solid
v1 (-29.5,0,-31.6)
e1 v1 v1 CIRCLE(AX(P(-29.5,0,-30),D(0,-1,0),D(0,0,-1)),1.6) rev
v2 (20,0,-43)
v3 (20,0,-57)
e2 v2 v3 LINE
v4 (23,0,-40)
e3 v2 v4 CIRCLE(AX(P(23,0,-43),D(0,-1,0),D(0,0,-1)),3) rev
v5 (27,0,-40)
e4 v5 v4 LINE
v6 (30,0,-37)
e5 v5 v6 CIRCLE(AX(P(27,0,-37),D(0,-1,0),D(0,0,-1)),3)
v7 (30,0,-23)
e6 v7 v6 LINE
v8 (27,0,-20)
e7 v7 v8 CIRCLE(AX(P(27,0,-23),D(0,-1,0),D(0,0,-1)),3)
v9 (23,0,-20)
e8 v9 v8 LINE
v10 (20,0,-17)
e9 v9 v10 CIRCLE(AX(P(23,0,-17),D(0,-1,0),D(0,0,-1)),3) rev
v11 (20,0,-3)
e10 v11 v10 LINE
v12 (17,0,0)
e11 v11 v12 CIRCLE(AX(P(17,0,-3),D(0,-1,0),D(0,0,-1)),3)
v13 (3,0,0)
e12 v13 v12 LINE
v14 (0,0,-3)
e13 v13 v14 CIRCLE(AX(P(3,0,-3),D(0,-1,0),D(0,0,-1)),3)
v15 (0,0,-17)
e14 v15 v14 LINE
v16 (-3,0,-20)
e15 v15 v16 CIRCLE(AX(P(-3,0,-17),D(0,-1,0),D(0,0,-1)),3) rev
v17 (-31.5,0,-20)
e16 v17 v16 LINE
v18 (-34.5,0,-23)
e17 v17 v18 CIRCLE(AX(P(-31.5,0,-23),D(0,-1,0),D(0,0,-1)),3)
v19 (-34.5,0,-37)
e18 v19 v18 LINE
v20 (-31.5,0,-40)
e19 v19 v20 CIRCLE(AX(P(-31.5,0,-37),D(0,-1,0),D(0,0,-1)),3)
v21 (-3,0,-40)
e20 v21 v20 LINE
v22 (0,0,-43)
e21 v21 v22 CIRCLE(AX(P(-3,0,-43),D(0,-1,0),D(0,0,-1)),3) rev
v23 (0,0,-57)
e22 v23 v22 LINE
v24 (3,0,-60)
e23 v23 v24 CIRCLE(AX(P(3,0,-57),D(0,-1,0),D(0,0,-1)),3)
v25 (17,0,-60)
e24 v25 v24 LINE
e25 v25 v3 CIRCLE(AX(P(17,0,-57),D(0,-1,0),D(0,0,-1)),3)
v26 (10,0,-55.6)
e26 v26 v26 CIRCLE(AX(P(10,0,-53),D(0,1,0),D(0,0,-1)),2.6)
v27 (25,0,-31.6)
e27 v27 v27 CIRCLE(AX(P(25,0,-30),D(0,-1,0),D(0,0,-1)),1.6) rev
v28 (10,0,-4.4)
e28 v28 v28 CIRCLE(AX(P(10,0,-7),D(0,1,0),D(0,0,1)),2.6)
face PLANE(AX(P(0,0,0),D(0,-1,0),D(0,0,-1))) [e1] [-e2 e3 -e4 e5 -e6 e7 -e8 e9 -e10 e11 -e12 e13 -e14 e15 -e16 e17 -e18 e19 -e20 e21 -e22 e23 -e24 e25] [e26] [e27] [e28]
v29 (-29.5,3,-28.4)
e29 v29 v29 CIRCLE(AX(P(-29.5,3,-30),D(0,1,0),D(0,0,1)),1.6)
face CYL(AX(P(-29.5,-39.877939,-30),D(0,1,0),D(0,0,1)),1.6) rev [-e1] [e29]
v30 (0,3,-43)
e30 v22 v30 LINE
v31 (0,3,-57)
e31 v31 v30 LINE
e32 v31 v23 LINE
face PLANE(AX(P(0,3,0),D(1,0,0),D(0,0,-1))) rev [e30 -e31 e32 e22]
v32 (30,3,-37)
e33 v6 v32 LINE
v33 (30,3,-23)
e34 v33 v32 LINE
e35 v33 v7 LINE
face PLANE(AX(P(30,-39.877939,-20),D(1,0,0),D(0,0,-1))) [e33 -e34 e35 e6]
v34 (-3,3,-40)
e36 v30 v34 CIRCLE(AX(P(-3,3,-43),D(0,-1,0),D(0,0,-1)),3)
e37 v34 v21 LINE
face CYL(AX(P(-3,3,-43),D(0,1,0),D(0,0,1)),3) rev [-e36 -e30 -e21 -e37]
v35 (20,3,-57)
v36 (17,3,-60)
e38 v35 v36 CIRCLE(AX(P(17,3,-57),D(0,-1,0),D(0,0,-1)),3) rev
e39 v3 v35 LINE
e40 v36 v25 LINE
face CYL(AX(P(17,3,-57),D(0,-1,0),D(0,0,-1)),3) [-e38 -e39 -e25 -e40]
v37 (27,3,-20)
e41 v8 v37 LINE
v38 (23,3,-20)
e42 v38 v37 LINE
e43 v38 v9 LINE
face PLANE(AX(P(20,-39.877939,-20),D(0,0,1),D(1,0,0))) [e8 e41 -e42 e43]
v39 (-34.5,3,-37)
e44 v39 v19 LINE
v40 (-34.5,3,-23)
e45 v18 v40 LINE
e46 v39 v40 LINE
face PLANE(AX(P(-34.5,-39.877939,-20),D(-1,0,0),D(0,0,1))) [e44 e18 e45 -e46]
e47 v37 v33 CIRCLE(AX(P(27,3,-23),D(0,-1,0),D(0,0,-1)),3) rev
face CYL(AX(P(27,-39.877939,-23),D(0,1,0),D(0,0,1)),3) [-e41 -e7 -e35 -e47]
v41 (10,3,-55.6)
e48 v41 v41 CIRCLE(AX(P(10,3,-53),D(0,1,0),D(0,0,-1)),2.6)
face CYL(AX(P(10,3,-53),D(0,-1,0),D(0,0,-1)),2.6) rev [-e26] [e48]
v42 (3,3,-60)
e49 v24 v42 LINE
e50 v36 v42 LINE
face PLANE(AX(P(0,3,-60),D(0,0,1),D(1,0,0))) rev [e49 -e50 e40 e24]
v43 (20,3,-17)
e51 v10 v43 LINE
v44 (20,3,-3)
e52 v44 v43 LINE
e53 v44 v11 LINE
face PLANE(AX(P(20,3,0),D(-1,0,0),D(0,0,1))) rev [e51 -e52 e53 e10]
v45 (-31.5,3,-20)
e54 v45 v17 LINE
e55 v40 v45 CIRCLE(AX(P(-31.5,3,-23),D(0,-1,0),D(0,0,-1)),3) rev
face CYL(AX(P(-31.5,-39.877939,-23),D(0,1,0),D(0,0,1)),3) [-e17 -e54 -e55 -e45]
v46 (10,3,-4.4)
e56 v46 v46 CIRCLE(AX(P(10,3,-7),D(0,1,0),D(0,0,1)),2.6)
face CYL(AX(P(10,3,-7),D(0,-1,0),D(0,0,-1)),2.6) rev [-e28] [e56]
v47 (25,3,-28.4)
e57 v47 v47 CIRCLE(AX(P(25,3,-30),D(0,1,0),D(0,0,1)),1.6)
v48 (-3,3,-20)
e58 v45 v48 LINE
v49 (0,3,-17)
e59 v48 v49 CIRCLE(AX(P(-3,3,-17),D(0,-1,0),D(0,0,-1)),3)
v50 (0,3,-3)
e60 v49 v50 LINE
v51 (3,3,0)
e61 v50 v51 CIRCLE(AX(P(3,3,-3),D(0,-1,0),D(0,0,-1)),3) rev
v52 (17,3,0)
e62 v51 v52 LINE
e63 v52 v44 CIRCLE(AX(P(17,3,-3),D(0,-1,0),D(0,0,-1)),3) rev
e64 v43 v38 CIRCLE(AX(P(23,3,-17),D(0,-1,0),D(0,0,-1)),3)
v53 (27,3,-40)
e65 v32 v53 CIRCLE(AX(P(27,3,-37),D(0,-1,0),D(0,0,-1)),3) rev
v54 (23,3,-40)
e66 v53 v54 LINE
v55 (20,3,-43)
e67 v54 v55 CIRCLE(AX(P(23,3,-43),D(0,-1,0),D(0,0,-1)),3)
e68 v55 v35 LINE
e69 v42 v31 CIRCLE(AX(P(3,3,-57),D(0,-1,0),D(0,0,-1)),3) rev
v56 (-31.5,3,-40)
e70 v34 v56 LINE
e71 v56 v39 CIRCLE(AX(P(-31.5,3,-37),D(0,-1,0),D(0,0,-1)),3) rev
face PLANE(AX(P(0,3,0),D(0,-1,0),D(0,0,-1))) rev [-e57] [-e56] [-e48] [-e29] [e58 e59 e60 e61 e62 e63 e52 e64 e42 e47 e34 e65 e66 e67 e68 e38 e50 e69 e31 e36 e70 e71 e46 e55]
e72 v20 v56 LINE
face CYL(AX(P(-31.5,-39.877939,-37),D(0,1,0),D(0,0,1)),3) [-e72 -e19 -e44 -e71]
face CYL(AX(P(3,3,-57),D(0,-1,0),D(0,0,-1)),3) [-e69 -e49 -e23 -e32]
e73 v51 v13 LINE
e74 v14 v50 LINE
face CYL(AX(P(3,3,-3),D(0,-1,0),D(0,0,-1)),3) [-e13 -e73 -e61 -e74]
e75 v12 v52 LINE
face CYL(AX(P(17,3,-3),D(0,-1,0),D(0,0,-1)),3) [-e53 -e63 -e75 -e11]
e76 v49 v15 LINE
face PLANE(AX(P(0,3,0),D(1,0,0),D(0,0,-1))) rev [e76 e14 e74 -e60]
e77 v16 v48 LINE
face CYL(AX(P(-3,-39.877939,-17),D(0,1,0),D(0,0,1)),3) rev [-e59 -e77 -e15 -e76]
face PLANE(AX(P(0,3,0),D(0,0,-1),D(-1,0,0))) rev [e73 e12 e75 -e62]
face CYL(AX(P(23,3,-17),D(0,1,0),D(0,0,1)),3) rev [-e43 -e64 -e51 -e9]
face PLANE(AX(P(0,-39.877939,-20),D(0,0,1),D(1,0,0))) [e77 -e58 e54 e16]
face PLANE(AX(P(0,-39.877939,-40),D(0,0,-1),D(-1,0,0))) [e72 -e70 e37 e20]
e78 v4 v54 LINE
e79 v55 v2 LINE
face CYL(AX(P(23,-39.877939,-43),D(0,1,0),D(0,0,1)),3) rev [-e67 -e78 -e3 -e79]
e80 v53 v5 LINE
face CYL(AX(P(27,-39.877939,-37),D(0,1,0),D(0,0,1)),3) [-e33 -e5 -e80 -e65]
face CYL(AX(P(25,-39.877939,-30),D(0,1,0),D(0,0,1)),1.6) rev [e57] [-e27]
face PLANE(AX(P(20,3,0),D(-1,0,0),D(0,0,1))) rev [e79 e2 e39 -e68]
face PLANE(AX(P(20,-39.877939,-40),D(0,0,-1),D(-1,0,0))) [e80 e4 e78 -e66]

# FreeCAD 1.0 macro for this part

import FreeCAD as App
import Part
import Sketcher
Q = App.Units.Quantity


def edges_at(feature, points):
    """Names of the edges that pass closest to the given points."""
    edges = feature.Shape.Edges
    near = lambda p: min(range(len(edges)), key=lambda i: edges[i].distToShape(Part.Vertex(*p))[0])
    return sorted({f"Edge{near(p) + 1}" for p in points})


def add_polygon(sketch, points):
    """Adds a closed chain of lines whose ends are joined by coincident constraints."""
    first, n = sketch.GeometryCount, len(points)
    for a, b in zip(points, points[1:] + points[:1]):
        sketch.addGeometry(Part.LineSegment(App.Vector(*a, 0), App.Vector(*b, 0)), False)
    for i in range(n):
        sketch.addConstraint(Sketcher.Constraint("Coincident", first + i, 2, first + (i + 1) % n, 1))

doc = App.newDocument("Part")
body = doc.addObject("PartDesign::Body", "Body")

# Sketch on XZ plane
sketch1 = doc.addObject("Sketcher::SketchObject", "Sketch")
body.addObject(sketch1)
sketch1.AttachmentSupport = (doc.XZ_Plane, [""])
sketch1.MapMode = "FlatFace"
add_polygon(sketch1, [(0, -60), (0, 0), (20, 0), (20, -60)])  # lines 0-3
sketch1.addGeometry(Part.Circle(App.Vector(10, -7, 0), App.Vector(0, 0, 1), 2.6), False)  # 4
sketch1.addGeometry(Part.Circle(App.Vector(10, -53, 0), App.Vector(0, 0, 1), 2.6), False)  # 5
sketch1.addConstraint(Sketcher.Constraint("Vertical", 0))
sketch1.addConstraint(Sketcher.Constraint("Horizontal", 1))
sketch1.addConstraint(Sketcher.Constraint("Vertical", 2))
sketch1.addConstraint(Sketcher.Constraint("Horizontal", 3))
sketch1.addConstraint(Sketcher.Constraint("Coincident", 0, 2, -1, 1))
sketch1.addConstraint(Sketcher.Constraint("Equal", 4, 5))
sketch1.addConstraint(Sketcher.Constraint("Vertical", 4, 3, 5, 3))
sketch1.addConstraint(Sketcher.Constraint("Diameter", 4, Q("5.2 mm")))
sketch1.addConstraint(Sketcher.Constraint("DistanceX", 1, 1, 1, 2, Q("20 mm")))
sketch1.addConstraint(Sketcher.Constraint("DistanceY", 0, 1, 0, 2, Q("60 mm")))
sketch1.addConstraint(Sketcher.Constraint("DistanceX", -1, 1, 4, 3, Q("10 mm")))
sketch1.addConstraint(Sketcher.Constraint("DistanceY", 4, 3, -1, 1, Q("7 mm")))
sketch1.addConstraint(Sketcher.Constraint("DistanceY", 5, 3, -1, 1, Q("53 mm")))
pad1 = doc.addObject("PartDesign::Pad", "Pad")
body.addObject(pad1)
pad1.Profile = sketch1
pad1.Length = 3
pad1.Reversed = True

# Sketch on XZ plane
sketch2 = doc.addObject("Sketcher::SketchObject", "Sketch001")
body.addObject(sketch2)
sketch2.AttachmentSupport = (doc.XZ_Plane, [""])
sketch2.MapMode = "FlatFace"
sketch2.AttachmentOffset = App.Placement(App.Vector(0, 0, -3), App.Rotation())
add_polygon(sketch2, [(-34.5, -40), (-34.5, -20), (0, -20), (0, -40)])  # lines 0-3
sketch2.addGeometry(Part.Circle(App.Vector(-29.5, -30, 0), App.Vector(0, 0, 1), 1.6), False)  # 4
add_polygon(sketch2, [(20, -40), (20, -20), (30, -20), (30, -40)])  # lines 5-8
sketch2.addGeometry(Part.Circle(App.Vector(25, -30, 0), App.Vector(0, 0, 1), 1.6), False)  # 9
sketch2.addConstraint(Sketcher.Constraint("Vertical", 0))
sketch2.addConstraint(Sketcher.Constraint("Horizontal", 1))
sketch2.addConstraint(Sketcher.Constraint("Vertical", 2))
sketch2.addConstraint(Sketcher.Constraint("Horizontal", 3))
sketch2.addConstraint(Sketcher.Constraint("Vertical", 5))
sketch2.addConstraint(Sketcher.Constraint("Horizontal", 6))
sketch2.addConstraint(Sketcher.Constraint("Vertical", 7))
sketch2.addConstraint(Sketcher.Constraint("Horizontal", 8))
sketch2.addConstraint(Sketcher.Constraint("Equal", 4, 9))
sketch2.addConstraint(Sketcher.Constraint("PointOnObject", 1, 2, -2))
sketch2.addConstraint(Sketcher.Constraint("Horizontal", 4, 3, 9, 3))
sketch2.addConstraint(Sketcher.Constraint("Horizontal", 1, 2, 5, 2))
sketch2.addConstraint(Sketcher.Constraint("Horizontal", 3, 2, 7, 2))
sketch2.addConstraint(Sketcher.Constraint("Diameter", 4, Q("3.2 mm")))
sketch2.addConstraint(Sketcher.Constraint("DistanceX", 6, 1, 6, 2, Q("10 mm")))
sketch2.addConstraint(Sketcher.Constraint("DistanceY", 0, 1, 0, 2, Q("20 mm")))
sketch2.addConstraint(Sketcher.Constraint("DistanceX", 1, 1, 1, 2, Q("34.5 mm")))
sketch2.addConstraint(Sketcher.Constraint("DistanceY", 4, 3, -1, 1, Q("30 mm")))
sketch2.addConstraint(Sketcher.Constraint("DistanceX", -1, 1, 9, 3, Q("25 mm")))
sketch2.addConstraint(Sketcher.Constraint("DistanceY", 0, 2, -1, 1, Q("20 mm")))
sketch2.addConstraint(Sketcher.Constraint("DistanceX", -1, 1, 5, 2, Q("20 mm")))
sketch2.addConstraint(Sketcher.Constraint("DistanceX", 0, 2, 4, 3, Q("5 mm")))
pad2 = doc.addObject("PartDesign::Pad", "Pad001")
body.addObject(pad2)
pad2.Profile = sketch2
pad2.Length = 3
doc.recompute()

fillet = doc.addObject("PartDesign::Fillet", "Fillet")
body.addObject(fillet)
fillet.Base = (pad2, edges_at(pad2, [
    (0, 1.5, -40),
    (0, 1.5, -20),
    (-34.5, 1.5, -20),
    (-34.5, 1.5, -40),
    (20, 1.5, -20),
    (20, 1.5, -40),
    (30, 1.5, -40),
    (30, 1.5, -20),
    (0, 1.5, -60),
    (20, 1.5, -60),
    (20, 1.5, 0),
    (0, 1.5, 0),
]))
fillet.Radius = 3

doc.recompute()
